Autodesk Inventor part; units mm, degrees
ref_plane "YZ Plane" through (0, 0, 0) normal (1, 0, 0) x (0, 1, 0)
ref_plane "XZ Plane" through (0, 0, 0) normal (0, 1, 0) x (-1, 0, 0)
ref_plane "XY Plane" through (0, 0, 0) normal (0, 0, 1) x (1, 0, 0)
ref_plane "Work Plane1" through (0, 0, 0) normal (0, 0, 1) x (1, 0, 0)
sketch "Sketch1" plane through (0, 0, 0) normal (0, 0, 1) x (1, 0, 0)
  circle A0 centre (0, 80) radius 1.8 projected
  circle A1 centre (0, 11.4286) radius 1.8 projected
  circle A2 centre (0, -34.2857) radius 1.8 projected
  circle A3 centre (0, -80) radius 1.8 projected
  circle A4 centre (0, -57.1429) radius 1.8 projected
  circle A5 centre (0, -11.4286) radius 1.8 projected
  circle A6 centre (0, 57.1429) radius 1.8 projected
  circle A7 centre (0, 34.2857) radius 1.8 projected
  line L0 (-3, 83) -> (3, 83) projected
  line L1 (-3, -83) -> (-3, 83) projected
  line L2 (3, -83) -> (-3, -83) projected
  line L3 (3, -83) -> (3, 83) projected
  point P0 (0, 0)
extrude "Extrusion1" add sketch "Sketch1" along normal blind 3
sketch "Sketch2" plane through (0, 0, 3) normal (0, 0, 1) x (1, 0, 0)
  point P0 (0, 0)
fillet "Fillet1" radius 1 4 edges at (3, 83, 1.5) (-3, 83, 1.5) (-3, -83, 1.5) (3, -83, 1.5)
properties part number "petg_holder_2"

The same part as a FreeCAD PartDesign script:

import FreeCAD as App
import Part
import Sketcher
Q = App.Units.Quantity


def edges_at(feature, points):
    """Names of the edges that pass closest to the given points."""
    edges = feature.Shape.Edges
    near = lambda p: min(range(len(edges)), key=lambda i: edges[i].distToShape(Part.Vertex(*p))[0])
    return sorted({f"Edge{near(p) + 1}" for p in points})

doc = App.newDocument("Part")
body = doc.addObject("PartDesign::Body", "Body")

# Sketch on XY plane
sketch1 = body.newObject("Sketcher::SketchObject", "Sketch")
sketch1.AttachmentSupport = (doc.getObject("XY_Plane"), [""])
sketch1.MapMode = "FlatFace"
sketch1.addGeometry([
    Part.LineSegment(App.Vector(3, 83, 0), App.Vector(-3, 83, 0)),  # 0
    Part.LineSegment(App.Vector(-3, 83, 0), App.Vector(-3, -83, 0)),  # 1
    Part.LineSegment(App.Vector(-3, -83, 0), App.Vector(3, -83, 0)),  # 2
    Part.LineSegment(App.Vector(3, -83, 0), App.Vector(3, 83, 0)),  # 3
    Part.Circle(App.Vector(0, -80, 0), App.Vector(0, 0, 1), 1.8),  # 4
    Part.Circle(App.Vector(0, -57.1, 0), App.Vector(0, 0, 1), 1.8),  # 5
    Part.Circle(App.Vector(0, -34.3, 0), App.Vector(0, 0, 1), 1.8),  # 6
    Part.Circle(App.Vector(0, -11.4, 0), App.Vector(0, 0, 1), 1.8),  # 7
    Part.Circle(App.Vector(0, 11.4, 0), App.Vector(0, 0, 1), 1.8),  # 8
    Part.Circle(App.Vector(0, 34.3, 0), App.Vector(0, 0, 1), 1.8),  # 9
    Part.Circle(App.Vector(0, 57.1, 0), App.Vector(0, 0, 1), 1.8),  # 10
    Part.Circle(App.Vector(0, 80, 0), App.Vector(0, 0, 1), 1.8),  # 11
], False)
sketch1.addConstraint([
    Sketcher.Constraint("Coincident", 0, 2, 1, 1),
    Sketcher.Constraint("Coincident", 1, 2, 2, 1),
    Sketcher.Constraint("Coincident", 2, 2, 3, 1),
    Sketcher.Constraint("Coincident", 3, 2, 0, 1),
    Sketcher.Constraint("Horizontal", 0),
    Sketcher.Constraint("Vertical", 1),
    Sketcher.Constraint("Horizontal", 2),
    Sketcher.Constraint("Vertical", 3),
    Sketcher.Constraint("Equal", 4, 5),
    Sketcher.Constraint("Equal", 5, 6),
    Sketcher.Constraint("Equal", 6, 7),
    Sketcher.Constraint("Equal", 7, 8),
    Sketcher.Constraint("Equal", 8, 9),
    Sketcher.Constraint("Equal", 9, 10),
    Sketcher.Constraint("Equal", 10, 11),
    Sketcher.Constraint("Symmetric", 7, 3, 8, 3, -1, 1),
    Sketcher.Constraint("Symmetric", 6, 3, 9, 3, -1, 1),
    Sketcher.Constraint("Symmetric", 5, 3, 10, 3, -1, 1),
    Sketcher.Constraint("Symmetric", 4, 3, 11, 3, -1, 1),
    Sketcher.Constraint("Symmetric", 0, 2, 2, 2, -1, 1),
    Sketcher.Constraint("PointOnObject", 4, 3, -2),
    Sketcher.Constraint("PointOnObject", 5, 3, -2),
    Sketcher.Constraint("PointOnObject", 6, 3, -2),
    Sketcher.Constraint("PointOnObject", 7, 3, -2),
    Sketcher.Constraint("Diameter", 4, Q("3.6 mm")),
    Sketcher.Constraint("DistanceX", 0, 2, 0, 1, Q("6 mm")),
    Sketcher.Constraint("DistanceY", 1, 2, 1, 1, Q("166 mm")),
    Sketcher.Constraint("DistanceY", 4, 3, -1, 1, Q("80 mm")),
    Sketcher.Constraint("DistanceY", 5, 3, -1, 1, Q("57.143 mm")),
    Sketcher.Constraint("DistanceY", 6, 3, 7, 3, Q("22.857 mm")),
    Sketcher.Constraint("DistanceY", 6, 3, -1, 1, Q("34.2857 mm")),
])
pad1 = body.newObject("PartDesign::Pad", "Pad")
pad1.Profile = sketch1
pad1.Length = 3
doc.recompute()

fillet = body.newObject("PartDesign::Fillet", "Fillet")
fillet.Base = (pad1, edges_at(pad1, [
    (3, 83, 1.5),
    (-3, 83, 1.5),
    (-3, -83, 1.5),
    (3, -83, 1.5),
]))
fillet.Radius = 1

doc.recompute()
